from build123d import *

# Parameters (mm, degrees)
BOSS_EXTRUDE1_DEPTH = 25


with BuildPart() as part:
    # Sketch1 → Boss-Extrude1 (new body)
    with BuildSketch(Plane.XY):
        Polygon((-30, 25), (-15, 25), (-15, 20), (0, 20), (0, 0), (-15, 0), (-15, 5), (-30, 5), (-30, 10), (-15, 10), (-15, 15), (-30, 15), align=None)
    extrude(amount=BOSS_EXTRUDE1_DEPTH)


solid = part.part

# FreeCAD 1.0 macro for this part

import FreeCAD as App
import Part
import Sketcher

doc = App.newDocument("Part")
body = doc.addObject("PartDesign::Body", "Body")

sketch1 = body.newObject("Sketcher::SketchObject", "Sketch")
sketch1.AttachmentSupport = (doc.getObject("XY_Plane"), [""])
sketch1.MapMode = "FlatFace"
sketch1.addGeometry(Part.LineSegment(App.Vector(-15, 25, 0), App.Vector(-30, 25, 0)), False)
sketch1.addGeometry(Part.LineSegment(App.Vector(-30, 25, 0), App.Vector(-30, 15, 0)), False)
sketch1.addGeometry(Part.LineSegment(App.Vector(-30, 15, 0), App.Vector(-15, 15, 0)), False)
sketch1.addGeometry(Part.LineSegment(App.Vector(-15, 15, 0), App.Vector(-15, 10, 0)), False)
sketch1.addGeometry(Part.LineSegment(App.Vector(-15, 10, 0), App.Vector(-30, 10, 0)), False)
sketch1.addGeometry(Part.LineSegment(App.Vector(-30, 10, 0), App.Vector(-30, 5, 0)), False)
sketch1.addGeometry(Part.LineSegment(App.Vector(-30, 5, 0), App.Vector(-15, 5, 0)), False)
sketch1.addGeometry(Part.LineSegment(App.Vector(-15, 5, 0), App.Vector(-15, 0, 0)), False)
sketch1.addGeometry(Part.LineSegment(App.Vector(-15, 0, 0), App.Vector(0, 0, 0)), False)
sketch1.addGeometry(Part.LineSegment(App.Vector(0, 0, 0), App.Vector(0, 20, 0)), False)
sketch1.addGeometry(Part.LineSegment(App.Vector(0, 20, 0), App.Vector(-15, 20, 0)), False)
sketch1.addGeometry(Part.LineSegment(App.Vector(-15, 20, 0), App.Vector(-15, 25, 0)), False)
sketch1.addConstraint(Sketcher.Constraint("Coincident", 0, 2, 1, 1))
sketch1.addConstraint(Sketcher.Constraint("Coincident", 1, 2, 2, 1))
sketch1.addConstraint(Sketcher.Constraint("Coincident", 2, 2, 3, 1))
sketch1.addConstraint(Sketcher.Constraint("Coincident", 3, 2, 4, 1))
sketch1.addConstraint(Sketcher.Constraint("Coincident", 4, 2, 5, 1))
sketch1.addConstraint(Sketcher.Constraint("Coincident", 5, 2, 6, 1))
sketch1.addConstraint(Sketcher.Constraint("Coincident", 6, 2, 7, 1))
sketch1.addConstraint(Sketcher.Constraint("Coincident", 7, 2, 8, 1))
sketch1.addConstraint(Sketcher.Constraint("Coincident", 8, 2, 9, 1))
sketch1.addConstraint(Sketcher.Constraint("Coincident", 9, 2, 10, 1))
sketch1.addConstraint(Sketcher.Constraint("Coincident", 10, 2, 11, 1))
sketch1.addConstraint(Sketcher.Constraint("Coincident", 11, 2, 0, 1))
sketch1.addConstraint(Sketcher.Constraint("Horizontal", 0))
sketch1.addConstraint(Sketcher.Constraint("Vertical", 1))
sketch1.addConstraint(Sketcher.Constraint("Horizontal", 2))
sketch1.addConstraint(Sketcher.Constraint("Vertical", 3))
sketch1.addConstraint(Sketcher.Constraint("Horizontal", 4))
sketch1.addConstraint(Sketcher.Constraint("Vertical", 5))
sketch1.addConstraint(Sketcher.Constraint("Horizontal", 6))
sketch1.addConstraint(Sketcher.Constraint("Vertical", 7))
sketch1.addConstraint(Sketcher.Constraint("Horizontal", 8))
sketch1.addConstraint(Sketcher.Constraint("Vertical", 9))
sketch1.addConstraint(Sketcher.Constraint("Horizontal", 10))
sketch1.addConstraint(Sketcher.Constraint("Vertical", 11))
sketch1.addConstraint(Sketcher.Constraint("Coincident", 8, 2, -1, 1))
sketch1.addConstraint(Sketcher.Constraint("Vertical", 1, 2, 4, 2))
sketch1.addConstraint(Sketcher.Constraint("Vertical", 3, 2, 6, 2))
sketch1.addConstraint(Sketcher.Constraint("Vertical", 7, 2, 10, 2))
sketch1.addConstraint(Sketcher.Constraint("Equal", 6, 8))
sketch1.addConstraint(Sketcher.Constraint("Equal", 3, 5))
sketch1.addConstraint(Sketcher.Constraint("Equal", 5, 7))
sketch1.addConstraint(Sketcher.Constraint("Equal", 7, 11))
sketch1.addConstraint(Sketcher.Constraint("DistanceX", 0, 2, 0, 1, 15.0))
sketch1.addConstraint(Sketcher.Constraint("DistanceY", 1, 2, 1, 1, 10.0))
sketch1.addConstraint(Sketcher.Constraint("DistanceY", 3, 2, 3, 1, 5.0))
pad1 = body.newObject("PartDesign::Pad", "Pad")
pad1.Profile = sketch1
pad1.Length = 25

doc.recompute()
